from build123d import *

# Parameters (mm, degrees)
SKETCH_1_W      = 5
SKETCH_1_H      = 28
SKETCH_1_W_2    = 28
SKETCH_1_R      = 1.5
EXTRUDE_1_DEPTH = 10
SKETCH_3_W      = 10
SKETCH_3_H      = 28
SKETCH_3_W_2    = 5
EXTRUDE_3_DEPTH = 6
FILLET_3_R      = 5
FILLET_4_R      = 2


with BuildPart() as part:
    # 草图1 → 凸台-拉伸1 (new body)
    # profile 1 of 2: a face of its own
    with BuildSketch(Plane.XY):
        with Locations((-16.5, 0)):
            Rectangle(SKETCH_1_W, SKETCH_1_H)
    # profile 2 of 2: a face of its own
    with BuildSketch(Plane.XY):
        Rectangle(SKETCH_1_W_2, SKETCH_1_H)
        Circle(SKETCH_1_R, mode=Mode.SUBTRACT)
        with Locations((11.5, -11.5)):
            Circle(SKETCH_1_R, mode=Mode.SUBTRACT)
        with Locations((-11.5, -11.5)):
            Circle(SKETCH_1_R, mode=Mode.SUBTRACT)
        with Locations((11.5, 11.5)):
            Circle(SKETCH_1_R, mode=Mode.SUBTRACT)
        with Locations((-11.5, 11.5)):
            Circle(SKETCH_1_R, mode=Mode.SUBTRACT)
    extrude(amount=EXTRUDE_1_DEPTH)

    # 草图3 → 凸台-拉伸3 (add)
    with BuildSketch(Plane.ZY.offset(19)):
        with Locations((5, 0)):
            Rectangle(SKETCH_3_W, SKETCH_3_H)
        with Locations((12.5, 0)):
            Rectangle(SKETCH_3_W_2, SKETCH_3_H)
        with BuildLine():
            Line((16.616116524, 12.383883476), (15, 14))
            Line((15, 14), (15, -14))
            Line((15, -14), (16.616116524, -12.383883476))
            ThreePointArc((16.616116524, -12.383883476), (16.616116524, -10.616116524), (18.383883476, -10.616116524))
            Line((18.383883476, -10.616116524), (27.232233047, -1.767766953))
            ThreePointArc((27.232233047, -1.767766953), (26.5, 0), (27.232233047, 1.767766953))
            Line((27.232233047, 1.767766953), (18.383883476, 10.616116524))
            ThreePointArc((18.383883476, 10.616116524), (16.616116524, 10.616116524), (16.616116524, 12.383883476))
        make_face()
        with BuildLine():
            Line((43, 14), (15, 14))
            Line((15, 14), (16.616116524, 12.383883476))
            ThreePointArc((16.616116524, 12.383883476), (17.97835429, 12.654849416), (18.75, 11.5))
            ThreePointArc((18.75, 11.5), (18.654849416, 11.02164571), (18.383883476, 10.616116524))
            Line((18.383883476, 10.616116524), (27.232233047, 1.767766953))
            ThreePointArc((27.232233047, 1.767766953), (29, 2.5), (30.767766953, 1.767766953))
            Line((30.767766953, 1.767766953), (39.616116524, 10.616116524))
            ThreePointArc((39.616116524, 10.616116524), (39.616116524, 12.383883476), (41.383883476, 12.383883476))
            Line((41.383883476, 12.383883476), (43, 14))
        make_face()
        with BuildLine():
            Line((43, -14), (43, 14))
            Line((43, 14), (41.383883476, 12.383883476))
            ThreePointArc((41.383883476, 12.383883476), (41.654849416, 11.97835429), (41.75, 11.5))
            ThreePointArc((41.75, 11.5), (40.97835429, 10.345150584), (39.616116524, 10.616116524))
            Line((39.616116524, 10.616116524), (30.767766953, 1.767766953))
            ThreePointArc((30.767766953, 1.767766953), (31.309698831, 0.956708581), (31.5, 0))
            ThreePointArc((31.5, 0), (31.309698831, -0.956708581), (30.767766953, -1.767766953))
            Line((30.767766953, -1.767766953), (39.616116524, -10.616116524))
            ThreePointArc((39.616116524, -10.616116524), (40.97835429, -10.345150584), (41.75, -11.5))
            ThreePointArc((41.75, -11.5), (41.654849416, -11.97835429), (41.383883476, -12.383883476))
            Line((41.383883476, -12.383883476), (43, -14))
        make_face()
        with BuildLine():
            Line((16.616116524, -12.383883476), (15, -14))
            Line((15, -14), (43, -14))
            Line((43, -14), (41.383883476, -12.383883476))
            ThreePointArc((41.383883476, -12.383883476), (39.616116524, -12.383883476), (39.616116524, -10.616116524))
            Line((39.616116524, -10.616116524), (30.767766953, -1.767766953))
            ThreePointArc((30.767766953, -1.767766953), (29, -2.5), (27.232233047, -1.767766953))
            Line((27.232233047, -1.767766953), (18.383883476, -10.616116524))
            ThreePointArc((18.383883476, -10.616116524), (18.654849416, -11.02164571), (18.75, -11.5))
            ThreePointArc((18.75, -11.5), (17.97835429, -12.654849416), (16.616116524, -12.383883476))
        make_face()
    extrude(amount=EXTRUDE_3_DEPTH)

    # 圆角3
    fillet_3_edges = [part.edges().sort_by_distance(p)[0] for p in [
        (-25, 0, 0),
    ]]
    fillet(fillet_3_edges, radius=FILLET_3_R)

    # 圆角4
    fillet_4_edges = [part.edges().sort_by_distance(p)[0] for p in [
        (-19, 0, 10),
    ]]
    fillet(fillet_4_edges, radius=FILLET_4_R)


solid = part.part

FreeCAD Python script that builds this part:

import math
import FreeCAD as App
import Part
import Sketcher

V = App.Vector


def edges_at(feature, points):
    """Names of the edges that pass closest to the given points."""
    edges = feature.Shape.Edges
    near = lambda p: min(range(len(edges)), key=lambda i: edges[i].distToShape(Part.Vertex(*p))[0])
    return sorted({f"Edge{near(p) + 1}" for p in points})

doc = App.newDocument("Part")
body = doc.addObject("PartDesign::Body", "Body")

sketch1 = body.newObject("Sketcher::SketchObject", "Sketch")
sketch1.AttachmentSupport = (doc.getObject("XY_Plane"), [""])
sketch1.MapMode = "FlatFace"
sketch1.addGeometry(Part.LineSegment(V(-19, 14, 0), V(-19, -14, 0)), False)
sketch1.addGeometry(Part.LineSegment(V(-19, -14, 0), V(14, -14, 0)), False)
sketch1.addGeometry(Part.LineSegment(V(14, -14, 0), V(14, 14, 0)), False)
sketch1.addGeometry(Part.LineSegment(V(14, 14, 0), V(-19, 14, 0)), False)
sketch1.addGeometry(Part.Circle(V(11.5, 11.5, 0), V(0, 0, 1), 1.5), False)
sketch1.addGeometry(Part.Circle(V(-11.5, -11.5, 0), V(0, 0, 1), 1.5), False)
sketch1.addGeometry(Part.Circle(V(11.5, -11.5, 0), V(0, 0, 1), 1.5), False)
sketch1.addGeometry(Part.Circle(V(-11.5, 11.5, 0), V(0, 0, 1), 1.5), False)
sketch1.addGeometry(Part.Circle(V(0, 0, 0), V(0, 0, 1), 1.5), False)
sketch1.addConstraint(Sketcher.Constraint("Coincident", 0, 2, 1, 1))
sketch1.addConstraint(Sketcher.Constraint("Coincident", 1, 2, 2, 1))
sketch1.addConstraint(Sketcher.Constraint("Coincident", 2, 2, 3, 1))
sketch1.addConstraint(Sketcher.Constraint("Coincident", 3, 2, 0, 1))
sketch1.addConstraint(Sketcher.Constraint("Vertical", 0))
sketch1.addConstraint(Sketcher.Constraint("Horizontal", 1))
sketch1.addConstraint(Sketcher.Constraint("Vertical", 2))
sketch1.addConstraint(Sketcher.Constraint("Horizontal", 3))
sketch1.addConstraint(Sketcher.Constraint("Coincident", 8, 3, -1, 1))
sketch1.addConstraint(Sketcher.Constraint("Equal", 4, 5))
sketch1.addConstraint(Sketcher.Constraint("Equal", 5, 6))
sketch1.addConstraint(Sketcher.Constraint("Equal", 6, 7))
sketch1.addConstraint(Sketcher.Constraint("Equal", 7, 8))
sketch1.addConstraint(Sketcher.Constraint("Symmetric", 4, 3, 5, 3, -1, 1))
sketch1.addConstraint(Sketcher.Constraint("Symmetric", 6, 3, 7, 3, -1, 1))
sketch1.addConstraint(Sketcher.Constraint("Symmetric", 5, 3, 6, 3, -2))
sketch1.addConstraint(Sketcher.Constraint("Diameter", 4, 3.0))
sketch1.addConstraint(Sketcher.Constraint("DistanceX", 1, 1, 1, 2, 33.0))
sketch1.addConstraint(Sketcher.Constraint("DistanceY", 0, 2, 0, 1, 28.0))
sketch1.addConstraint(Sketcher.Constraint("DistanceX", 0, 2, -1, 1, 19.0))
sketch1.addConstraint(Sketcher.Constraint("DistanceY", 0, 2, -1, 1, 14.0))
sketch1.addConstraint(Sketcher.Constraint("DistanceX", 5, 3, 4, 3, 23.0))
sketch1.addConstraint(Sketcher.Constraint("DistanceY", 5, 3, 4, 3, 23.0))
pad1 = body.newObject("PartDesign::Pad", "Pad")
pad1.Profile = sketch1
pad1.Length = 10

sketch2 = body.newObject("Sketcher::SketchObject", "Sketch001")
sketch2.AttachmentSupport = (doc.getObject("YZ_Plane"), [""])
sketch2.MapMode = "FlatFace"
sketch2.AttachmentOffset = App.Placement(V(0, 0, -19), App.Rotation())
sketch2.addGeometry(Part.LineSegment(V(14, 0, 0), V(-14, 0, 0)), False)
sketch2.addGeometry(Part.LineSegment(V(-14, 0, 0), V(-14, 43, 0)), False)
sketch2.addGeometry(Part.LineSegment(V(-14, 43, 0), V(14, 43, 0)), False)
sketch2.addGeometry(Part.LineSegment(V(14, 43, 0), V(14, 0, 0)), False)
sketch2.addGeometry(Part.ArcOfCircle(Part.Circle(V(-11.5, 17.5, 0), V(0, 0, 1), 1.25), math.radians(-135), math.radians(45)), False)
sketch2.addGeometry(Part.ArcOfCircle(Part.Circle(V(-11.5, 17.5, 0), V(0, 0, 1), 1.25), math.radians(45), math.radians(90)), False)
sketch2.addGeometry(Part.ArcOfCircle(Part.Circle(V(-11.5, 17.5, 0), V(0, 0, 1), 1.25), math.radians(90), math.radians(225)), False)
sketch2.addGeometry(Part.ArcOfCircle(Part.Circle(V(0, 29, 0), V(0, 0, 1), 2.5), math.radians(-135), math.radians(-45)), False)
sketch2.addGeometry(Part.ArcOfCircle(Part.Circle(V(0, 29, 0), V(0, 0, 1), 2.5), math.radians(-45), math.radians(45)), False)
sketch2.addGeometry(Part.ArcOfCircle(Part.Circle(V(0, 29, 0), V(0, 0, 1), 2.5), math.radians(45), math.radians(90)), False)
sketch2.addGeometry(Part.ArcOfCircle(Part.Circle(V(0, 29, 0), V(0, 0, 1), 2.5), math.radians(90), math.radians(135)), False)
sketch2.addGeometry(Part.ArcOfCircle(Part.Circle(V(0, 29, 0), V(0, 0, 1), 2.5), math.radians(135), math.radians(225)), False)
sketch2.addGeometry(Part.ArcOfCircle(Part.Circle(V(-11.5, 40.5, 0), V(0, 0, 1), 1.25), math.radians(-45), math.radians(90)), False)
sketch2.addGeometry(Part.ArcOfCircle(Part.Circle(V(-11.5, 40.5, 0), V(0, 0, 1), 1.25), math.radians(90), math.radians(135)), False)
sketch2.addGeometry(Part.ArcOfCircle(Part.Circle(V(-11.5, 40.5, 0), V(0, 0, 1), 1.25), math.radians(135), math.radians(315)), False)
sketch2.addGeometry(Part.ArcOfCircle(Part.Circle(V(11.5, 40.5, 0), V(0, 0, 1), 1.25), math.radians(-135), math.radians(45)), False)
sketch2.addGeometry(Part.ArcOfCircle(Part.Circle(V(11.5, 40.5, 0), V(0, 0, 1), 1.25), math.radians(45), math.radians(90)), False)
sketch2.addGeometry(Part.ArcOfCircle(Part.Circle(V(11.5, 40.5, 0), V(0, 0, 1), 1.25), math.radians(90), math.radians(225)), False)
sketch2.addGeometry(Part.ArcOfCircle(Part.Circle(V(11.5, 17.5, 0), V(0, 0, 1), 1.25), math.radians(135), math.radians(315)), False)
sketch2.addGeometry(Part.ArcOfCircle(Part.Circle(V(11.5, 17.5, 0), V(0, 0, 1), 1.25), math.radians(-45), math.radians(90)), False)
sketch2.addGeometry(Part.ArcOfCircle(Part.Circle(V(11.5, 17.5, 0), V(0, 0, 1), 1.25), math.radians(90), math.radians(135)), False)
sketch2.addConstraint(Sketcher.Constraint("Coincident", 0, 2, 1, 1))
sketch2.addConstraint(Sketcher.Constraint("Coincident", 1, 2, 2, 1))
sketch2.addConstraint(Sketcher.Constraint("Coincident", 2, 2, 3, 1))
sketch2.addConstraint(Sketcher.Constraint("Coincident", 3, 2, 0, 1))
sketch2.addConstraint(Sketcher.Constraint("Tangent", 4, 2, 5, 1))
sketch2.addConstraint(Sketcher.Constraint("Tangent", 5, 2, 6, 1))
sketch2.addConstraint(Sketcher.Constraint("Tangent", 6, 2, 4, 1))
sketch2.addConstraint(Sketcher.Constraint("Tangent", 7, 2, 8, 1))
sketch2.addConstraint(Sketcher.Constraint("Tangent", 8, 2, 9, 1))
sketch2.addConstraint(Sketcher.Constraint("Tangent", 9, 2, 10, 1))
sketch2.addConstraint(Sketcher.Constraint("Tangent", 10, 2, 11, 1))
sketch2.addConstraint(Sketcher.Constraint("Tangent", 11, 2, 7, 1))
sketch2.addConstraint(Sketcher.Constraint("Tangent", 12, 2, 13, 1))
sketch2.addConstraint(Sketcher.Constraint("Tangent", 13, 2, 14, 1))
sketch2.addConstraint(Sketcher.Constraint("Tangent", 14, 2, 12, 1))
sketch2.addConstraint(Sketcher.Constraint("Tangent", 15, 2, 16, 1))
sketch2.addConstraint(Sketcher.Constraint("Tangent", 16, 2, 17, 1))
sketch2.addConstraint(Sketcher.Constraint("Tangent", 17, 2, 15, 1))
sketch2.addConstraint(Sketcher.Constraint("Tangent", 18, 2, 19, 1))
sketch2.addConstraint(Sketcher.Constraint("Tangent", 19, 2, 20, 1))
sketch2.addConstraint(Sketcher.Constraint("Tangent", 20, 2, 18, 1))
sketch2.addConstraint(Sketcher.Constraint("Horizontal", 0))
sketch2.addConstraint(Sketcher.Constraint("Vertical", 1))
sketch2.addConstraint(Sketcher.Constraint("Horizontal", 2))
sketch2.addConstraint(Sketcher.Constraint("Vertical", 3))
sketch2.addConstraint(Sketcher.Constraint("Coincident", 9, 3, 7, 3))
sketch2.addConstraint(Sketcher.Constraint("Equal", 6, 12))
sketch2.addConstraint(Sketcher.Constraint("Equal", 14, 15))
sketch2.addConstraint(Sketcher.Constraint("Equal", 17, 18))
sketch2.addConstraint(Sketcher.Constraint("Symmetric", 0, 2, 3, 2, -1, 1))
sketch2.addConstraint(Sketcher.Constraint("Symmetric", 12, 3, 15, 3, -2))
sketch2.addConstraint(Sketcher.Constraint("Symmetric", 4, 3, 18, 3, -2))
sketch2.addConstraint(Sketcher.Constraint("Symmetric", 8, 2, 10, 2, -2))
sketch2.addConstraint(Sketcher.Constraint("PointOnObject", 9, 2, -2))
sketch2.addConstraint(Sketcher.Constraint("Horizontal", 7, 2, 11, 2))
sketch2.addConstraint(Sketcher.Constraint("Horizontal", 13, 2, 15, 2))
sketch2.addConstraint(Sketcher.Constraint("Horizontal", 14, 2, 17, 2))
sketch2.addConstraint(Sketcher.Constraint("Horizontal", 6, 2, 18, 2))
sketch2.addConstraint(Sketcher.Constraint("Horizontal", 4, 2, 20, 2))
sketch2.addConstraint(Sketcher.Constraint("Vertical", 6, 3, 12, 3))
sketch2.addConstraint(Sketcher.Constraint("Vertical", 14, 3, 5, 2))
sketch2.addConstraint(Sketcher.Constraint("Vertical", 7, 2, 8, 2))
sketch2.addConstraint(Sketcher.Constraint("Vertical", 5, 2, 12, 2))
sketch2.addConstraint(Sketcher.Constraint("Vertical", 6, 2, 13, 2))
sketch2.addConstraint(Sketcher.Constraint("Vertical", 4, 2, 14, 2))
sketch2.addConstraint(Sketcher.Constraint("Vertical", 20, 3, 16, 2))
sketch2.addConstraint(Sketcher.Constraint("Vertical", 16, 2, 19, 2))
sketch2.addConstraint(Sketcher.Constraint("Radius", 7, 2.5))
sketch2.addConstraint(Sketcher.Constraint("DistanceX", 0, 2, 0, 1, 28.0))
sketch2.addConstraint(Sketcher.Constraint("DistanceY", 1, 1, 1, 2, 43.0))
sketch2.addConstraint(Sketcher.Constraint("Radius", 4, 1.25))
sketch2.addConstraint(Sketcher.Constraint("DistanceY", -1, 1, 7, 3, 29.0))
sketch2.addConstraint(Sketcher.Constraint("DistanceX", 4, 3, -1, 1, 11.5))
sketch2.addConstraint(Sketcher.Constraint("DistanceY", -1, 1, 4, 3, 17.5))
sketch2.addConstraint(Sketcher.Constraint("DistanceY", -1, 1, 12, 3, 40.5))
sketch2.addConstraint(Sketcher.Constraint("DistanceX", 4, 2, -1, 1, 10.616117))
sketch2.addConstraint(Sketcher.Constraint("DistanceX", 6, 2, -1, 1, 12.383883))
sketch2.addConstraint(Sketcher.Constraint("DistanceX", -1, 1, 7, 2, 1.767767))
pad2 = body.newObject("PartDesign::Pad", "Pad001")
pad2.Profile = sketch2
pad2.Length = 6
pad2.Reversed = True
doc.recompute()

fillet = body.newObject("PartDesign::Fillet", "Fillet")
fillet.Base = (pad2, edges_at(pad2, [(-25, 0, 0)]))
fillet.Radius = 5
doc.recompute()

fillet2 = body.newObject("PartDesign::Fillet", "Fillet001")
fillet2.Base = (fillet, edges_at(fillet, [(-19, 0, 10)]))
fillet2.Radius = 2

doc.recompute()
